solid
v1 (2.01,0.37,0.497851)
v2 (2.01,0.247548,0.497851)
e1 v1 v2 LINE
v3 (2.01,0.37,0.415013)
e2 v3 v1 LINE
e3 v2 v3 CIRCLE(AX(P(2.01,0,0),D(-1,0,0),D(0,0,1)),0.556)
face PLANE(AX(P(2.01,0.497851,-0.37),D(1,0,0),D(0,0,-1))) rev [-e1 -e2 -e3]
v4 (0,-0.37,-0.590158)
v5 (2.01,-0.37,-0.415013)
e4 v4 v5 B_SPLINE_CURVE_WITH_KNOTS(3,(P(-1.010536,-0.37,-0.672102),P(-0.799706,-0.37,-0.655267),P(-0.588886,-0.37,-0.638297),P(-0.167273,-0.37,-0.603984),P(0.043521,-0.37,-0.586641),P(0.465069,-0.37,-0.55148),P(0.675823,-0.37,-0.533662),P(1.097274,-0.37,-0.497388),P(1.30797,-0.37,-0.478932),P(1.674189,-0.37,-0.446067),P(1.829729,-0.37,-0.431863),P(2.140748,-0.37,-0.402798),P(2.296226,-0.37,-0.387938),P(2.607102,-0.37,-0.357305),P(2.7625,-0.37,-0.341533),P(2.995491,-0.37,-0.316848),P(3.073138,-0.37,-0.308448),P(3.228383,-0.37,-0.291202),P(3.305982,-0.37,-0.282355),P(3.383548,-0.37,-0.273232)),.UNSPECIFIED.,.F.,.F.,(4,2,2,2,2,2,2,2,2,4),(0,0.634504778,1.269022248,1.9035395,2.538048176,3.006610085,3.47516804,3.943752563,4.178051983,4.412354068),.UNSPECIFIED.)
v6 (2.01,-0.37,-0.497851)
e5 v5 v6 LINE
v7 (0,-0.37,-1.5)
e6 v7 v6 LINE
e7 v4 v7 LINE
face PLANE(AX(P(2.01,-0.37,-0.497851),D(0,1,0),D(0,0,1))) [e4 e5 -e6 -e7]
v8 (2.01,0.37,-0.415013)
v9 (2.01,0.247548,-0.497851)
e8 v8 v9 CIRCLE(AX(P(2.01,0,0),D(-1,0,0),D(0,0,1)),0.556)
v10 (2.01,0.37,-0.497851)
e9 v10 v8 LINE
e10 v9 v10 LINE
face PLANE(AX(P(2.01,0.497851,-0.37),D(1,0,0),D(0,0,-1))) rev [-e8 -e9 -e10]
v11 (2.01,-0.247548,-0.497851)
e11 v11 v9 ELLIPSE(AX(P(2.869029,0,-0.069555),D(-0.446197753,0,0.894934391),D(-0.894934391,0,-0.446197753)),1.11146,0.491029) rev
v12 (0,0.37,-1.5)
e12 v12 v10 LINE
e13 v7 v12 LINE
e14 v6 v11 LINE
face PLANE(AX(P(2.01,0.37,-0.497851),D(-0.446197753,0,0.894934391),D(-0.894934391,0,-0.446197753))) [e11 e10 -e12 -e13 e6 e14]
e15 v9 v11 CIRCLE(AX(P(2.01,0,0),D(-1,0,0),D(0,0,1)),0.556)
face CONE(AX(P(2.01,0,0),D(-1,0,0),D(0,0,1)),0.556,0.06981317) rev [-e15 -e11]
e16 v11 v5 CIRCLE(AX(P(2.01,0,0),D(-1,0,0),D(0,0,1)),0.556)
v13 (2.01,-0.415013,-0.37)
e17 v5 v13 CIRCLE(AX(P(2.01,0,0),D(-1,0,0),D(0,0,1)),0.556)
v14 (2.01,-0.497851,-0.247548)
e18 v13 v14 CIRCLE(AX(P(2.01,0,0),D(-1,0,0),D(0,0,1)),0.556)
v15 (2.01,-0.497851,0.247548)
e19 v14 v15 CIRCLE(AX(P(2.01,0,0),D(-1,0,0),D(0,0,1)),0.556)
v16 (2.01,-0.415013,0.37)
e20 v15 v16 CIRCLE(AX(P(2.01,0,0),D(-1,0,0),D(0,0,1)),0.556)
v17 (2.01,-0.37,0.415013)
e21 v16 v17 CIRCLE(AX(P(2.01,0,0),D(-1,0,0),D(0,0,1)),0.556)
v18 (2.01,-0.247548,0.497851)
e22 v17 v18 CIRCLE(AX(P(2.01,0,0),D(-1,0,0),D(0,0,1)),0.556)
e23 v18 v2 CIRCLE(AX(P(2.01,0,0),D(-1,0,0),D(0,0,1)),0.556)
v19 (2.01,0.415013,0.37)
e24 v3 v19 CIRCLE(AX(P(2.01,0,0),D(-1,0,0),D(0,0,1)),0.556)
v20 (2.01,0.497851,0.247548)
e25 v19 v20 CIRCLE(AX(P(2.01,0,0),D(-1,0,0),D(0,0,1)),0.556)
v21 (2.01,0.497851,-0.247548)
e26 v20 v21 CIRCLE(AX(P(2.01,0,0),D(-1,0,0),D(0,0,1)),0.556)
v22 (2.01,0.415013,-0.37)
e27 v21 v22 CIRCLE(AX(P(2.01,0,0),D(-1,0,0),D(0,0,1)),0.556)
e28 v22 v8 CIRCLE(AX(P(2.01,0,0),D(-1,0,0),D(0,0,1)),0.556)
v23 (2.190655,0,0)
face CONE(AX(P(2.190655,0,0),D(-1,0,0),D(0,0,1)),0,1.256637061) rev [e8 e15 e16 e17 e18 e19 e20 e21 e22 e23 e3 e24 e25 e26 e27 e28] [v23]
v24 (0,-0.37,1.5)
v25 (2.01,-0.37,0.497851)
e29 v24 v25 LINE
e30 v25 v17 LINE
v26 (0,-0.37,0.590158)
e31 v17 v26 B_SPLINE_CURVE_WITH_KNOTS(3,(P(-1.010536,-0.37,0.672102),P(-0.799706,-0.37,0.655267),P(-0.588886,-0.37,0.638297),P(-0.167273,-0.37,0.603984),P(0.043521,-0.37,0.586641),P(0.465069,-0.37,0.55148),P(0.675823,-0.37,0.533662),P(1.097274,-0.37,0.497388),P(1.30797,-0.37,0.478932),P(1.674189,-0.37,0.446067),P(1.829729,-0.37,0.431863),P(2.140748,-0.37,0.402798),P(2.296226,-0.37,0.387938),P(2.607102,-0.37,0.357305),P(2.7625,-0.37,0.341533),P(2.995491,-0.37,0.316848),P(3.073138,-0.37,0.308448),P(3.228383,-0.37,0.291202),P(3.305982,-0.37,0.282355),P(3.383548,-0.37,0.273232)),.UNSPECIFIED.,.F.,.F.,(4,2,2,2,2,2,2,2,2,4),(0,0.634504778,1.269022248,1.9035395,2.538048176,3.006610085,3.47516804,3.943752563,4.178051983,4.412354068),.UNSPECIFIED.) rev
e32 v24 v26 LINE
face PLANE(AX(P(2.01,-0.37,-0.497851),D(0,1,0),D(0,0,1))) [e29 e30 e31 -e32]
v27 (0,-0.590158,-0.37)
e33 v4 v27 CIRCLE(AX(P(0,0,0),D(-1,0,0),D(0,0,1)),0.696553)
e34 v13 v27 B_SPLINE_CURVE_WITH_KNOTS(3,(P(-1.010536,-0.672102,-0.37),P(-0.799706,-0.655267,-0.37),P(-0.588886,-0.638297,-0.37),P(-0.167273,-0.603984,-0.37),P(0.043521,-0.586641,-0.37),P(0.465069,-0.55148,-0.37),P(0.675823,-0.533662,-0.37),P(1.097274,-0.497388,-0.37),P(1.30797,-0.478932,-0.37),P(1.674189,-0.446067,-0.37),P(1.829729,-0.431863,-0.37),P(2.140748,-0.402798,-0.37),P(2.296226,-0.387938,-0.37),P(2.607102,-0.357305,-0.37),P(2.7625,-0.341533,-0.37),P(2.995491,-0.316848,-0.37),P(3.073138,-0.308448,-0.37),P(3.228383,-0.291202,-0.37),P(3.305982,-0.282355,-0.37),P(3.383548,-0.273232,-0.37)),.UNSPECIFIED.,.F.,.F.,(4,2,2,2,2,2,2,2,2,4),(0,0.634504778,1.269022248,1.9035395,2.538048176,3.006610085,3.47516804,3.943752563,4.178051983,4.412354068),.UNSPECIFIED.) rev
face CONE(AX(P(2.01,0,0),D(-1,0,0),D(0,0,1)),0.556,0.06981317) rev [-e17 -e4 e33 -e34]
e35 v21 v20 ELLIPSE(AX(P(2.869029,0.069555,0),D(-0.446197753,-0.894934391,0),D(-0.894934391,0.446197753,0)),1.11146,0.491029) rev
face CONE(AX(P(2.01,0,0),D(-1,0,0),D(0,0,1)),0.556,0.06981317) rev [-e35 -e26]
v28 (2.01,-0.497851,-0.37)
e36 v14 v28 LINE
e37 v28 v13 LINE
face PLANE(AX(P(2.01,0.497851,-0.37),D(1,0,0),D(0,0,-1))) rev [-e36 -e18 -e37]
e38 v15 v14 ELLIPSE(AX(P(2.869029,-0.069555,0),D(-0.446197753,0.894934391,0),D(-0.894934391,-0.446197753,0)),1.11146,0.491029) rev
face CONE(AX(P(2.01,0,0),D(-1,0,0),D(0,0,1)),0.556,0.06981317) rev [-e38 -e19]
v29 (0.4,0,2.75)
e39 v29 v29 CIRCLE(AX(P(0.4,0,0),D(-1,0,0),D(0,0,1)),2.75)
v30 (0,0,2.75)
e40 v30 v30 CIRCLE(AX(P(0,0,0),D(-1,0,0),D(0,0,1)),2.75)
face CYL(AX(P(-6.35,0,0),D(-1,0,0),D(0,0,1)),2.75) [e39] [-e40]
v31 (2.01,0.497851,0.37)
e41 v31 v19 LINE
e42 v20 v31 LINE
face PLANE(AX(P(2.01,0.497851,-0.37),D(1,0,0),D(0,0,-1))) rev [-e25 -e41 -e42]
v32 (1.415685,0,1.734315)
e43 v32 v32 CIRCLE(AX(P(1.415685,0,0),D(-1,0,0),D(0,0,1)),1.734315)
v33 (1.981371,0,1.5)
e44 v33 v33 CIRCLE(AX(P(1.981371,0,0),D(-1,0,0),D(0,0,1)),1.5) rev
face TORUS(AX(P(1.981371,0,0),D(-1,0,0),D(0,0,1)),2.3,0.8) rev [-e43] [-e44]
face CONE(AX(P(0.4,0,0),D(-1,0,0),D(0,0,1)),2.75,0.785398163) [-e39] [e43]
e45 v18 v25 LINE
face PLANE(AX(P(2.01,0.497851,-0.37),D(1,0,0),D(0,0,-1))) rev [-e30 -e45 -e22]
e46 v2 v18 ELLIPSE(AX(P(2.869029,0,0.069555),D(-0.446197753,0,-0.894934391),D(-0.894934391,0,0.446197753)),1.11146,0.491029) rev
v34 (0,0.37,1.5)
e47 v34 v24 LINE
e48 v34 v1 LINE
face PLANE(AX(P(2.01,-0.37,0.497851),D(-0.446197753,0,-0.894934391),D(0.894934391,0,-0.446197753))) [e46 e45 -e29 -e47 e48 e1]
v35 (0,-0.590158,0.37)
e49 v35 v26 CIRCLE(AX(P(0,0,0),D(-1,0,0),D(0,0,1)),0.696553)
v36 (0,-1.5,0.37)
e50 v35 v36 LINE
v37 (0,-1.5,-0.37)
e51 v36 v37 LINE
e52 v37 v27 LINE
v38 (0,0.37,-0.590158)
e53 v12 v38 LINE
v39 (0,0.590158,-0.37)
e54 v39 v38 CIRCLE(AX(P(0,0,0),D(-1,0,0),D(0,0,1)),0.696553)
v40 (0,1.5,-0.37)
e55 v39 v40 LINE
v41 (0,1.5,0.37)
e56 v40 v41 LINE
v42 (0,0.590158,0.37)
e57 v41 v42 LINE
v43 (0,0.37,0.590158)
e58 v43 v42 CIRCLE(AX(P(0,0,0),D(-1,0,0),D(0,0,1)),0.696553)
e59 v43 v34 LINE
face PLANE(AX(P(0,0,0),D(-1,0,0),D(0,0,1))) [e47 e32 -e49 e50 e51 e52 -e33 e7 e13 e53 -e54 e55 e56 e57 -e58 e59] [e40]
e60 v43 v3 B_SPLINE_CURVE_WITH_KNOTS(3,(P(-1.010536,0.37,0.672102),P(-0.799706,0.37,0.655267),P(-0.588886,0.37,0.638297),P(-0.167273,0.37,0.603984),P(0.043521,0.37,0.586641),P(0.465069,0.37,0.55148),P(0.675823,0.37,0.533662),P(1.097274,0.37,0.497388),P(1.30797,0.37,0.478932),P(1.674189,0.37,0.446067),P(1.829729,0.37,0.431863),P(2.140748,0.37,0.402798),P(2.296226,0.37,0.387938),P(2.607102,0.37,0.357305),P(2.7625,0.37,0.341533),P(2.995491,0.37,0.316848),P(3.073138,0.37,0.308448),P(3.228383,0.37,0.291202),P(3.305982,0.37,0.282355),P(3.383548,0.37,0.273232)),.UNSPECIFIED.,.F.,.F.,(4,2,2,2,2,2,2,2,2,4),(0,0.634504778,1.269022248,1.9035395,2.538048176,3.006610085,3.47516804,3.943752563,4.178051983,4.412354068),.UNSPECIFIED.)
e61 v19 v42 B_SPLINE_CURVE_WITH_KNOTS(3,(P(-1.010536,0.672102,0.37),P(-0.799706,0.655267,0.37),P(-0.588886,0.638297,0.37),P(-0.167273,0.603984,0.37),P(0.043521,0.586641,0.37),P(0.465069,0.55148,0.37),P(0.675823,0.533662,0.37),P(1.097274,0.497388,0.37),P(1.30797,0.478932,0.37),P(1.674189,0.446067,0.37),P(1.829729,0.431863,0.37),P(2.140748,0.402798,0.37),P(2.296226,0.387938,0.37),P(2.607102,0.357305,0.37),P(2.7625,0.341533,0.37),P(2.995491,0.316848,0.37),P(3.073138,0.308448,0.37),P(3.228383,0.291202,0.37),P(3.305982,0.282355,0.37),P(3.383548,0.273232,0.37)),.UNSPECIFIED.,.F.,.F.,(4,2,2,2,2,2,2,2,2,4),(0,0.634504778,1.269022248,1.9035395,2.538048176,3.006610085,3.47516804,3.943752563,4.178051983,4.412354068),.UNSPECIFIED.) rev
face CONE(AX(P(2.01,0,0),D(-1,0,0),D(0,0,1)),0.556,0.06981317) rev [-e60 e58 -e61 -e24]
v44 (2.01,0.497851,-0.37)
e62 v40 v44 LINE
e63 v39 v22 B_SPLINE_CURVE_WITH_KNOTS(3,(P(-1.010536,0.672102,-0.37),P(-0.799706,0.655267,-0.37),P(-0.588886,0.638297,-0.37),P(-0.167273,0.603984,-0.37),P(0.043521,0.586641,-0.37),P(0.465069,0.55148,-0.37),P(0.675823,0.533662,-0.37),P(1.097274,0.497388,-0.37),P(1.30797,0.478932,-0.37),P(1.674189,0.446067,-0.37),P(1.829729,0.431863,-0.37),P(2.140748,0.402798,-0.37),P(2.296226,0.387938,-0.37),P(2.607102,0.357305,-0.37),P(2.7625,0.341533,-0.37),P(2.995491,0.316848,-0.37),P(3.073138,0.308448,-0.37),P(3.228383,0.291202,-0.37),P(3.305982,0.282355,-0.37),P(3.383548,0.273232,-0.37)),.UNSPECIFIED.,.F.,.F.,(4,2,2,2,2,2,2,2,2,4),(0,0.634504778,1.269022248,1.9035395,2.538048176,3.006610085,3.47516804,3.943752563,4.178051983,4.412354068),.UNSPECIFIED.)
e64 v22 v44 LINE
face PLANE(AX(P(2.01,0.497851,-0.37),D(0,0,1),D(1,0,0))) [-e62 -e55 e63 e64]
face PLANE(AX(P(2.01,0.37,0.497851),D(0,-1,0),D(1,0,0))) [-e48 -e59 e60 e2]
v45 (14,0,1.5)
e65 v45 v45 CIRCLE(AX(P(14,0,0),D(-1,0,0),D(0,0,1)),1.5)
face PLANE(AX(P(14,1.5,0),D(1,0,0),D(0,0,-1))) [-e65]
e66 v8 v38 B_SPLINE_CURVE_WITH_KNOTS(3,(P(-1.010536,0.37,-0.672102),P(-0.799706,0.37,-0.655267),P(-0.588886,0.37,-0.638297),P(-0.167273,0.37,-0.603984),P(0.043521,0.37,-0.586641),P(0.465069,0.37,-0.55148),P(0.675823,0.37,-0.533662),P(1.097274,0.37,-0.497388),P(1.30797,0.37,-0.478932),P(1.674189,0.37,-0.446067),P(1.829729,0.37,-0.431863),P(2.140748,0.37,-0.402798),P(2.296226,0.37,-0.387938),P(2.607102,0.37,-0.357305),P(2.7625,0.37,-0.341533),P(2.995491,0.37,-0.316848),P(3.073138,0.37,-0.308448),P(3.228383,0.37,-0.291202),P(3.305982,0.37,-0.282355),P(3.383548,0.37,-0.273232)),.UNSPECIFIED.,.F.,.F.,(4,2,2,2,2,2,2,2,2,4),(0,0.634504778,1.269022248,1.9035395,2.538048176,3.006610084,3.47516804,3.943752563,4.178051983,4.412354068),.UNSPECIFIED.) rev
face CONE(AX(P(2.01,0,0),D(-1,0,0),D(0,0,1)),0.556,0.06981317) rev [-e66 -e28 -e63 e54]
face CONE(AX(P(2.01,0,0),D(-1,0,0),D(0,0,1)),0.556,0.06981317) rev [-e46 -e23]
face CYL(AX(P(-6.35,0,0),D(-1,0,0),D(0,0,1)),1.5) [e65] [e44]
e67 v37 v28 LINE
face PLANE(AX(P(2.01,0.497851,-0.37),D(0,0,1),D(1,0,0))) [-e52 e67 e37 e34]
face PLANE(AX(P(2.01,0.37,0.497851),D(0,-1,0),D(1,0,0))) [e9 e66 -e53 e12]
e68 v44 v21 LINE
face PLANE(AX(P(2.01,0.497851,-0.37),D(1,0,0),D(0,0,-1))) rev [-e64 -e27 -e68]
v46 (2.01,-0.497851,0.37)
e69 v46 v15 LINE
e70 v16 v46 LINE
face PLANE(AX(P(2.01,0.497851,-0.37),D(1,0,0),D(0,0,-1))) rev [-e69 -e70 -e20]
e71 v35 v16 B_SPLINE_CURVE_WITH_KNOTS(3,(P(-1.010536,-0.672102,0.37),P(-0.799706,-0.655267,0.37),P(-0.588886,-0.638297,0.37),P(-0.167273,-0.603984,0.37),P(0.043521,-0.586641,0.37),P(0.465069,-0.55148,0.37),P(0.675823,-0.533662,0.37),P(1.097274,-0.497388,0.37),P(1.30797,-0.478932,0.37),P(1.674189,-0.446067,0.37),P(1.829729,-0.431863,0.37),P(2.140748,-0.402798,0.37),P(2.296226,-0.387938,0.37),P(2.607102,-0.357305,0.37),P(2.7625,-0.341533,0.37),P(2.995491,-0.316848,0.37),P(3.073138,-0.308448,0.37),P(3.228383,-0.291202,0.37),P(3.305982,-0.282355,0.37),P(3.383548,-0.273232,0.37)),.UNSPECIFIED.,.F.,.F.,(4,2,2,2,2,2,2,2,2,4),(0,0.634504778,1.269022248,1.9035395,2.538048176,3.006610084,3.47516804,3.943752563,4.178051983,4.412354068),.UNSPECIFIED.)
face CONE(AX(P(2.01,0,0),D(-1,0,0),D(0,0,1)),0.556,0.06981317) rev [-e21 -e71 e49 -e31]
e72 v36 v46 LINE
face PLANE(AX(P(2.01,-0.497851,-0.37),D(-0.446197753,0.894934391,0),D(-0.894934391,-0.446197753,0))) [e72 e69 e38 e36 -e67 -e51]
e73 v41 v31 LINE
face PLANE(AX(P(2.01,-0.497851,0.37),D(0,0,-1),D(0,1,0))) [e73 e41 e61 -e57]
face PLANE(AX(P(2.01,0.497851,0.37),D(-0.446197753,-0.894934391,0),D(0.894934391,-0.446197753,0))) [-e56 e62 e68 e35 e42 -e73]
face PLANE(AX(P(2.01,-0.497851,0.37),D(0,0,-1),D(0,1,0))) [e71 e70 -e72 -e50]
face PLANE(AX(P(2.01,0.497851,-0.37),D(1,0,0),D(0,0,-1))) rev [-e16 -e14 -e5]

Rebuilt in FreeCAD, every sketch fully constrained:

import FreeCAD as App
import Part
import Sketcher

V = App.Vector
Q = App.Units.Quantity


def edges_at(feature, points):
    """Names of the edges that pass closest to the given points."""
    edges = feature.Shape.Edges
    near = lambda p: min(range(len(edges)), key=lambda i: edges[i].distToShape(Part.Vertex(*p))[0])
    return sorted({f"Edge{near(p) + 1}" for p in points})


def add_polygon(sketch, points):
    """Adds a closed chain of lines whose ends are joined by coincident constraints."""
    first, n = sketch.GeometryCount, len(points)
    for a, b in zip(points, points[1:] + points[:1]):
        sketch.addGeometry(Part.LineSegment(App.Vector(*a, 0), App.Vector(*b, 0)), False)
    for i in range(n):
        sketch.addConstraint(Sketcher.Constraint("Coincident", first + i, 2, first + (i + 1) % n, 1))

doc = App.newDocument("Part")
body = doc.addObject("PartDesign::Body", "Body")

sketch1 = body.newObject("Sketcher::SketchObject", "Sketch")
sketch1.AttachmentSupport = (doc.getObject("XY_Plane"), [""])
sketch1.MapMode = "FlatFace"
add_polygon(sketch1, [(0, 2.75), (0, 0), (14, 0), (14, 1.5), (1.65, 1.5), (0.4, 2.75)])
sketch1.addConstraint([
    Sketcher.Constraint("Vertical", 0),
    Sketcher.Constraint("Horizontal", 1),
    Sketcher.Constraint("Vertical", 2),
    Sketcher.Constraint("Horizontal", 3),
    Sketcher.Constraint("Horizontal", 5),
    Sketcher.Constraint("Coincident", 0, 2, -1, 1),
    Sketcher.Constraint("DistanceX", 1, 1, 1, 2, 14.0),
    Sketcher.Constraint("Angle", 4, Q("135 deg")),
    Sketcher.Constraint("DistanceX", 5, 2, 5, 1, 0.4),
    Sketcher.Constraint("DistanceY", 2, 1, 2, 2, 1.5),
    Sketcher.Constraint("DistanceX", 3, 2, 3, 1, 12.35),
])
revolution = body.newObject("PartDesign::Revolution", "Revolution")
revolution.Profile = sketch1
revolution.ReferenceAxis = (sketch1, ["H_Axis"])
revolution.Angle = 360
doc.recompute()

fillet = body.newObject("PartDesign::Fillet", "Fillet")
fillet.Base = (revolution, edges_at(revolution, [(1.65, -1.5, 0)]))
fillet.Radius = 0.8

sketch2 = body.newObject("Sketcher::SketchObject", "Sketch001")
sketch2.AttachmentSupport = (doc.getObject("YZ_Plane"), [""])
sketch2.MapMode = "FlatFace"
add_polygon(sketch2, [(1.5, -0.4), (-1.5, -0.4), (-1.5, 0.4), (1.5, 0.4)])
sketch2.addConstraint([
    Sketcher.Constraint("Horizontal", 0),
    Sketcher.Constraint("Vertical", 1),
    Sketcher.Constraint("Horizontal", 2),
    Sketcher.Constraint("Vertical", 3),
    Sketcher.Constraint("Symmetric", 0, 2, 2, 2, -1, 1),
    Sketcher.Constraint("DistanceX", 0, 2, 0, 1, 3.0),
    Sketcher.Constraint("DistanceY", 1, 1, 1, 2, 0.74),
])

sketch3 = body.newObject("Sketcher::SketchObject", "Sketch002")
sketch3.AttachmentSupport = (doc.getObject("YZ_Plane"), [""])
sketch3.MapMode = "FlatFace"
sketch3.AttachmentOffset = App.Placement(V(0, 0, 2.01), App.Rotation())
add_polygon(sketch3, [(0.5, -0.4), (-0.5, -0.4), (-0.5, 0.4), (0.5, 0.4)])
sketch3.addConstraint([
    Sketcher.Constraint("Horizontal", 0),
    Sketcher.Constraint("Vertical", 1),
    Sketcher.Constraint("Horizontal", 2),
    Sketcher.Constraint("Vertical", 3),
    Sketcher.Constraint("Symmetric", 0, 2, 2, 2, -1, 1),
    Sketcher.Constraint("DistanceY", 1, 1, 1, 2, 0.74),
    Sketcher.Constraint("DistanceX", 0, 2, 0, 1, 0.995702),
])

subtractiveloft = body.newObject("PartDesign::SubtractiveLoft", "SubtractiveLoft")
subtractiveloft.Profile = sketch2
subtractiveloft.Sections = [sketch3]
doc.recompute()

polarpattern = body.newObject("PartDesign::PolarPattern", "PolarPattern")
polarpattern.Originals = [subtractiveloft]
polarpattern.Axis = (doc.getObject("X_Axis"), [""])
polarpattern.Angle = 90
polarpattern.Occurrences = 2
body.Tip = polarpattern

sketch4 = body.newObject("Sketcher::SketchObject", "Sketch003")
sketch4.AttachmentSupport = (doc.getObject("XY_Plane"), [""])
sketch4.MapMode = "FlatFace"
add_polygon(sketch4, [(0, 0.7), (0, 0), (2.2, 0), (2, 0.6)])
sketch4.addConstraint([
    Sketcher.Constraint("Vertical", 0),
    Sketcher.Constraint("Horizontal", 1),
    Sketcher.Constraint("Coincident", 0, 2, -1, 1),
    Sketcher.Constraint("Angle", 2, Q("108 deg")),
    Sketcher.Constraint("Angle", 3, Q("176 deg")),
    Sketcher.Constraint("DistanceX", -1, 1, 2, 2, 2.01),
    Sketcher.Constraint("DistanceY", -1, 1, 2, 2, 0.556),
])
groove = body.newObject("PartDesign::Groove", "Groove")
groove.Profile = sketch4
groove.ReferenceAxis = (sketch4, ["H_Axis"])
groove.Angle = 360

doc.recompute()
